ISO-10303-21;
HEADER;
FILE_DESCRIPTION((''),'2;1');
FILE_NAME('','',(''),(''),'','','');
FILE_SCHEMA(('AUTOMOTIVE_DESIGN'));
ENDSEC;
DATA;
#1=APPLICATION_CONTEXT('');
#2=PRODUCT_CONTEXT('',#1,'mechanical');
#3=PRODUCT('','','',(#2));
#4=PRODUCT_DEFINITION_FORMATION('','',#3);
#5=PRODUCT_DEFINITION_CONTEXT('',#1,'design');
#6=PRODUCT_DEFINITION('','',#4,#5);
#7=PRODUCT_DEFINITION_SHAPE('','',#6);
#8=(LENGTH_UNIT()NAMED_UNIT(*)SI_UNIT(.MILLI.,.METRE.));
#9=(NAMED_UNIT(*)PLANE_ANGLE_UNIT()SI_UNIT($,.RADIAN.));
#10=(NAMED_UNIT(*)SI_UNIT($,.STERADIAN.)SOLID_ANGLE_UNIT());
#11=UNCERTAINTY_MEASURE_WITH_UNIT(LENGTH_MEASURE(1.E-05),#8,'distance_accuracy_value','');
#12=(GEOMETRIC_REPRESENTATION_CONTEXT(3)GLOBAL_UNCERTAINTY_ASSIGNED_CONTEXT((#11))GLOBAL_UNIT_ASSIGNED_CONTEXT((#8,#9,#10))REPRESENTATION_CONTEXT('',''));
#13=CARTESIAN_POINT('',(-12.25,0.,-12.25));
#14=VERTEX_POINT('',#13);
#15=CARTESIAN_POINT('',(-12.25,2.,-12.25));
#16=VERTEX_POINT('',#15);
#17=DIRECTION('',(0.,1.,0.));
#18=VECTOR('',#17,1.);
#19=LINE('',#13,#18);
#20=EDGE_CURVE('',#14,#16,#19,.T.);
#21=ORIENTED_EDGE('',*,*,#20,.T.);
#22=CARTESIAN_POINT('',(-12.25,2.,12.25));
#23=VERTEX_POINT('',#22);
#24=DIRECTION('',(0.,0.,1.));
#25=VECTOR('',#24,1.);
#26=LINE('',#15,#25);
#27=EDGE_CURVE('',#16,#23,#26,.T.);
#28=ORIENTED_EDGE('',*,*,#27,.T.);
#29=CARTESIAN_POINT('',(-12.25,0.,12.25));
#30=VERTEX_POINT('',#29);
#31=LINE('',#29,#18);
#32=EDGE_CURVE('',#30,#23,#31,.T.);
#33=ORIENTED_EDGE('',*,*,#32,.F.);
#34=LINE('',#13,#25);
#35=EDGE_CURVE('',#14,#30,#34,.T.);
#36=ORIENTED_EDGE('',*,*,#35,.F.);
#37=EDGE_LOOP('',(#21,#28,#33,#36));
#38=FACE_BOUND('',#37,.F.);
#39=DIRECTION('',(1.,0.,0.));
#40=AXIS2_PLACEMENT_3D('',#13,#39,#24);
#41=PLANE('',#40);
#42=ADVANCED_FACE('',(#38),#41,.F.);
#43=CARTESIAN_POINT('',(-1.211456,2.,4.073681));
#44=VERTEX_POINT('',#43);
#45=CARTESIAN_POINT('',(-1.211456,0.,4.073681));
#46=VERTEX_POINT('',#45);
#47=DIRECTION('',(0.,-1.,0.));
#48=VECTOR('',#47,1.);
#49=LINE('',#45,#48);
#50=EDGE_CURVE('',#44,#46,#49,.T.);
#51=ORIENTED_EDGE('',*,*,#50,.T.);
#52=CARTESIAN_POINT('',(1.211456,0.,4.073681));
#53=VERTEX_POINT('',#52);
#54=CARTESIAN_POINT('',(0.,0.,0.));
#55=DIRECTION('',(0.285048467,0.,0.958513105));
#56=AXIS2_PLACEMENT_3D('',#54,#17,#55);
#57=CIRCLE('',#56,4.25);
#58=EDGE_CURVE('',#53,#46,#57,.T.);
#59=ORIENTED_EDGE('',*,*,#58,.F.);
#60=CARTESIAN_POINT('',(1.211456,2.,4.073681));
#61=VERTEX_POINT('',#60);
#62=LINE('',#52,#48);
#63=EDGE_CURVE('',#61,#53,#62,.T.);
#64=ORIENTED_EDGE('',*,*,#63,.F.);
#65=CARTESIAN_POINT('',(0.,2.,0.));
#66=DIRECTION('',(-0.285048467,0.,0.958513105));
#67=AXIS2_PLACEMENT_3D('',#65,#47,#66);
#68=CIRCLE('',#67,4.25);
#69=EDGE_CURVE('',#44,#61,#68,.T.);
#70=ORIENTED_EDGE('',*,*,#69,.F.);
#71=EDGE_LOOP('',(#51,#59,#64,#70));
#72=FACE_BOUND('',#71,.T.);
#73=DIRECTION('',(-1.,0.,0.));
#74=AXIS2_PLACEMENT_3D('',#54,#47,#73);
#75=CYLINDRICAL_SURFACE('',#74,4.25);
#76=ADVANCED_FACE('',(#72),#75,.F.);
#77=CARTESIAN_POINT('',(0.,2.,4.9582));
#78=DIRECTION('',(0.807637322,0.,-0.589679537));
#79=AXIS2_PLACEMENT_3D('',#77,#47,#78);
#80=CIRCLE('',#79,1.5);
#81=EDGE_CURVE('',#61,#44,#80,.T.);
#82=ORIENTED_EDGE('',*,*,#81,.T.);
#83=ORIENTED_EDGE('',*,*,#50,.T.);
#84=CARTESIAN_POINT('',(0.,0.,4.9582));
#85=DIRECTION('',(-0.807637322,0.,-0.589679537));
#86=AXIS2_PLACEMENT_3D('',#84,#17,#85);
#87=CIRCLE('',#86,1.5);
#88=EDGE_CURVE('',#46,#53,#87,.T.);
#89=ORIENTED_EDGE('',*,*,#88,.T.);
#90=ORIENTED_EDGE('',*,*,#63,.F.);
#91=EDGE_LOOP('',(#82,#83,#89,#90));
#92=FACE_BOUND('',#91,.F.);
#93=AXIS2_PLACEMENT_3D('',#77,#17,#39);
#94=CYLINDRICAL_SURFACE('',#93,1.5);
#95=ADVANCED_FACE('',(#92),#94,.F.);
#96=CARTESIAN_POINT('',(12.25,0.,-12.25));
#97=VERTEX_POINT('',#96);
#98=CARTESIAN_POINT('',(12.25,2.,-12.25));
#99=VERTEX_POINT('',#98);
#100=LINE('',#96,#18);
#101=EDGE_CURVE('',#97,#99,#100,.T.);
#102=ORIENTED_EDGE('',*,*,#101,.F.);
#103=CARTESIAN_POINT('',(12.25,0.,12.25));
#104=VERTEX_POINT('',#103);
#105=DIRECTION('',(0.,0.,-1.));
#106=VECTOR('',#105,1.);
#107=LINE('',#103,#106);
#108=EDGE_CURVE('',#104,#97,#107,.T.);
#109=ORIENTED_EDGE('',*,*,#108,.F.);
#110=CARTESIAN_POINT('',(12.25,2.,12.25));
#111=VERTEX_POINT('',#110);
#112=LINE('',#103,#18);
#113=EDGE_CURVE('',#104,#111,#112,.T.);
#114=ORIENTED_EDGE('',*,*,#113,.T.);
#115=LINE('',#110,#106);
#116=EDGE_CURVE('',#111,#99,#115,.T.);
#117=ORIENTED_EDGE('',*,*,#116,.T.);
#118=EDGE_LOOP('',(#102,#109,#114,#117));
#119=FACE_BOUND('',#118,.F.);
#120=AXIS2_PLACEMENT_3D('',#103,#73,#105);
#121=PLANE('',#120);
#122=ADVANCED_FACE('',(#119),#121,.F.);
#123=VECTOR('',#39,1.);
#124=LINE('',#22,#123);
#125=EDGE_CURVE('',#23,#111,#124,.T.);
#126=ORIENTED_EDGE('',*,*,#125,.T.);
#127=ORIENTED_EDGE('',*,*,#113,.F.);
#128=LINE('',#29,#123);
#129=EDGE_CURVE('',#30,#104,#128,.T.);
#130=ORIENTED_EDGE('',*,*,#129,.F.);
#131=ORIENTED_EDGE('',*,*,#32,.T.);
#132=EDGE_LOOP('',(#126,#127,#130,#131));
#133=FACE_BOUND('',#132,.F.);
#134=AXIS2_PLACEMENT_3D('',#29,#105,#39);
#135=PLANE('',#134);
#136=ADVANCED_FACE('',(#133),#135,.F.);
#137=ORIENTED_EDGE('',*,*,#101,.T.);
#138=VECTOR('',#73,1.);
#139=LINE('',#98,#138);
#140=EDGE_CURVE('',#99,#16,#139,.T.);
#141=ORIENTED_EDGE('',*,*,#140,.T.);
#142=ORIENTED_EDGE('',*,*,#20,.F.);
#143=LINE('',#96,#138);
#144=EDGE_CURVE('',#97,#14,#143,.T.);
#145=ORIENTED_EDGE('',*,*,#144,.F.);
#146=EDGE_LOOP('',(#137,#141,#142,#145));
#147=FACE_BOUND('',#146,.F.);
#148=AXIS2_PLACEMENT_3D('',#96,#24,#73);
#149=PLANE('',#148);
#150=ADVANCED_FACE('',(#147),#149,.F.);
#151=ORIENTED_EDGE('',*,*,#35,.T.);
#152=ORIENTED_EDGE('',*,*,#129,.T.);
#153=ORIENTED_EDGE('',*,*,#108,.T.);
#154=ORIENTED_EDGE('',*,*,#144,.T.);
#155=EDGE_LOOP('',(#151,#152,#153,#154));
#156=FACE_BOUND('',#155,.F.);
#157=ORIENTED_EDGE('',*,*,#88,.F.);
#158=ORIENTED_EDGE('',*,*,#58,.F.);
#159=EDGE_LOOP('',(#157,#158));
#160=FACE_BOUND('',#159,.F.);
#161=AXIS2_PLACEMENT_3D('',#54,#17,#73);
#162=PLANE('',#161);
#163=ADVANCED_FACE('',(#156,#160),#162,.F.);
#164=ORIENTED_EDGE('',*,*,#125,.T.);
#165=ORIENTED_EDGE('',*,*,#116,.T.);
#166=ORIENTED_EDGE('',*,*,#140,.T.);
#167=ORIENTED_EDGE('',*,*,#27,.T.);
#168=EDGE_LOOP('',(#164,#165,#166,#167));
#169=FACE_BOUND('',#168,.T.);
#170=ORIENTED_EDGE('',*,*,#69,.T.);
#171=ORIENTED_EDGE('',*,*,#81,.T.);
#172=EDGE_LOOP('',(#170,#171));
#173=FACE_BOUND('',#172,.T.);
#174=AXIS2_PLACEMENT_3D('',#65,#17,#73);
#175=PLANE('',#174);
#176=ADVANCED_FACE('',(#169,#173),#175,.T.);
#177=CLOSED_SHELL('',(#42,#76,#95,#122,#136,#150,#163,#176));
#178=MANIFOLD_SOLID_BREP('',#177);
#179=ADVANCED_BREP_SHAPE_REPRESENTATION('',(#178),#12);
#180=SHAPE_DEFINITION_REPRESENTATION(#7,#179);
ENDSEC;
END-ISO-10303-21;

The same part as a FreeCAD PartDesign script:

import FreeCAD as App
import Part
import Sketcher


def add_polygon(sketch, points):
    """Adds a closed chain of lines whose ends are joined by coincident constraints."""
    first, n = sketch.GeometryCount, len(points)
    for a, b in zip(points, points[1:] + points[:1]):
        sketch.addGeometry(Part.LineSegment(App.Vector(*a, 0), App.Vector(*b, 0)), False)
    for i in range(n):
        sketch.addConstraint(Sketcher.Constraint("Coincident", first + i, 2, first + (i + 1) % n, 1))

doc = App.newDocument("Part")
body = doc.addObject("PartDesign::Body", "Body")

sketch1 = body.newObject("Sketcher::SketchObject", "Sketch")
sketch1.AttachmentSupport = (doc.getObject("XZ_Plane"), [""])
sketch1.MapMode = "FlatFace"
add_polygon(sketch1, [(12.2, 12.2), (12.2, -12.2), (-12.2, -12.2), (-12.2, 12.2)])
sketch1.addGeometry(Part.Circle(App.Vector(0, 0, 0), App.Vector(0, 0, 1), 4.2), False)
sketch1.addConstraint([
    Sketcher.Constraint("Vertical", 0),
    Sketcher.Constraint("Horizontal", 1),
    Sketcher.Constraint("Vertical", 2),
    Sketcher.Constraint("Horizontal", 3),
    Sketcher.Constraint("Coincident", 4, 3, -1, 1),
    Sketcher.Constraint("Symmetric", 0, 2, 2, 2, -1, 1),
    Sketcher.Constraint("Equal", 3, 0),
    Sketcher.Constraint("Diameter", 4, 8.5),
    Sketcher.Constraint("DistanceX", 1, 2, 1, 1, 24.5),
])
pad1 = body.newObject("PartDesign::Pad", "Pad")
pad1.Profile = sketch1
pad1.Length = 2
pad1.Reversed = True

sketch2 = body.newObject("Sketcher::SketchObject", "Sketch001")
sketch2.AttachmentSupport = (doc.getObject("XZ_Plane"), [""])
sketch2.MapMode = "FlatFace"
sketch2.AttachmentOffset = App.Placement(App.Vector(0, 0, -2), App.Rotation())
sketch2.addGeometry(Part.Circle(App.Vector(0, 5, 0), App.Vector(0, 0, 1), 1.5), False)
sketch2.addConstraint([
    Sketcher.Constraint("PointOnObject", 0, 3, -2),
    Sketcher.Constraint("Diameter", 0, 3.0),
    Sketcher.Constraint("DistanceY", -1, 1, 0, 3, 4.9582),
])
pocket1 = body.newObject("PartDesign::Pocket", "Pocket")
pocket1.Profile = sketch2
pocket1.Length = 3
pocket1.Reversed = True

doc.recompute()
